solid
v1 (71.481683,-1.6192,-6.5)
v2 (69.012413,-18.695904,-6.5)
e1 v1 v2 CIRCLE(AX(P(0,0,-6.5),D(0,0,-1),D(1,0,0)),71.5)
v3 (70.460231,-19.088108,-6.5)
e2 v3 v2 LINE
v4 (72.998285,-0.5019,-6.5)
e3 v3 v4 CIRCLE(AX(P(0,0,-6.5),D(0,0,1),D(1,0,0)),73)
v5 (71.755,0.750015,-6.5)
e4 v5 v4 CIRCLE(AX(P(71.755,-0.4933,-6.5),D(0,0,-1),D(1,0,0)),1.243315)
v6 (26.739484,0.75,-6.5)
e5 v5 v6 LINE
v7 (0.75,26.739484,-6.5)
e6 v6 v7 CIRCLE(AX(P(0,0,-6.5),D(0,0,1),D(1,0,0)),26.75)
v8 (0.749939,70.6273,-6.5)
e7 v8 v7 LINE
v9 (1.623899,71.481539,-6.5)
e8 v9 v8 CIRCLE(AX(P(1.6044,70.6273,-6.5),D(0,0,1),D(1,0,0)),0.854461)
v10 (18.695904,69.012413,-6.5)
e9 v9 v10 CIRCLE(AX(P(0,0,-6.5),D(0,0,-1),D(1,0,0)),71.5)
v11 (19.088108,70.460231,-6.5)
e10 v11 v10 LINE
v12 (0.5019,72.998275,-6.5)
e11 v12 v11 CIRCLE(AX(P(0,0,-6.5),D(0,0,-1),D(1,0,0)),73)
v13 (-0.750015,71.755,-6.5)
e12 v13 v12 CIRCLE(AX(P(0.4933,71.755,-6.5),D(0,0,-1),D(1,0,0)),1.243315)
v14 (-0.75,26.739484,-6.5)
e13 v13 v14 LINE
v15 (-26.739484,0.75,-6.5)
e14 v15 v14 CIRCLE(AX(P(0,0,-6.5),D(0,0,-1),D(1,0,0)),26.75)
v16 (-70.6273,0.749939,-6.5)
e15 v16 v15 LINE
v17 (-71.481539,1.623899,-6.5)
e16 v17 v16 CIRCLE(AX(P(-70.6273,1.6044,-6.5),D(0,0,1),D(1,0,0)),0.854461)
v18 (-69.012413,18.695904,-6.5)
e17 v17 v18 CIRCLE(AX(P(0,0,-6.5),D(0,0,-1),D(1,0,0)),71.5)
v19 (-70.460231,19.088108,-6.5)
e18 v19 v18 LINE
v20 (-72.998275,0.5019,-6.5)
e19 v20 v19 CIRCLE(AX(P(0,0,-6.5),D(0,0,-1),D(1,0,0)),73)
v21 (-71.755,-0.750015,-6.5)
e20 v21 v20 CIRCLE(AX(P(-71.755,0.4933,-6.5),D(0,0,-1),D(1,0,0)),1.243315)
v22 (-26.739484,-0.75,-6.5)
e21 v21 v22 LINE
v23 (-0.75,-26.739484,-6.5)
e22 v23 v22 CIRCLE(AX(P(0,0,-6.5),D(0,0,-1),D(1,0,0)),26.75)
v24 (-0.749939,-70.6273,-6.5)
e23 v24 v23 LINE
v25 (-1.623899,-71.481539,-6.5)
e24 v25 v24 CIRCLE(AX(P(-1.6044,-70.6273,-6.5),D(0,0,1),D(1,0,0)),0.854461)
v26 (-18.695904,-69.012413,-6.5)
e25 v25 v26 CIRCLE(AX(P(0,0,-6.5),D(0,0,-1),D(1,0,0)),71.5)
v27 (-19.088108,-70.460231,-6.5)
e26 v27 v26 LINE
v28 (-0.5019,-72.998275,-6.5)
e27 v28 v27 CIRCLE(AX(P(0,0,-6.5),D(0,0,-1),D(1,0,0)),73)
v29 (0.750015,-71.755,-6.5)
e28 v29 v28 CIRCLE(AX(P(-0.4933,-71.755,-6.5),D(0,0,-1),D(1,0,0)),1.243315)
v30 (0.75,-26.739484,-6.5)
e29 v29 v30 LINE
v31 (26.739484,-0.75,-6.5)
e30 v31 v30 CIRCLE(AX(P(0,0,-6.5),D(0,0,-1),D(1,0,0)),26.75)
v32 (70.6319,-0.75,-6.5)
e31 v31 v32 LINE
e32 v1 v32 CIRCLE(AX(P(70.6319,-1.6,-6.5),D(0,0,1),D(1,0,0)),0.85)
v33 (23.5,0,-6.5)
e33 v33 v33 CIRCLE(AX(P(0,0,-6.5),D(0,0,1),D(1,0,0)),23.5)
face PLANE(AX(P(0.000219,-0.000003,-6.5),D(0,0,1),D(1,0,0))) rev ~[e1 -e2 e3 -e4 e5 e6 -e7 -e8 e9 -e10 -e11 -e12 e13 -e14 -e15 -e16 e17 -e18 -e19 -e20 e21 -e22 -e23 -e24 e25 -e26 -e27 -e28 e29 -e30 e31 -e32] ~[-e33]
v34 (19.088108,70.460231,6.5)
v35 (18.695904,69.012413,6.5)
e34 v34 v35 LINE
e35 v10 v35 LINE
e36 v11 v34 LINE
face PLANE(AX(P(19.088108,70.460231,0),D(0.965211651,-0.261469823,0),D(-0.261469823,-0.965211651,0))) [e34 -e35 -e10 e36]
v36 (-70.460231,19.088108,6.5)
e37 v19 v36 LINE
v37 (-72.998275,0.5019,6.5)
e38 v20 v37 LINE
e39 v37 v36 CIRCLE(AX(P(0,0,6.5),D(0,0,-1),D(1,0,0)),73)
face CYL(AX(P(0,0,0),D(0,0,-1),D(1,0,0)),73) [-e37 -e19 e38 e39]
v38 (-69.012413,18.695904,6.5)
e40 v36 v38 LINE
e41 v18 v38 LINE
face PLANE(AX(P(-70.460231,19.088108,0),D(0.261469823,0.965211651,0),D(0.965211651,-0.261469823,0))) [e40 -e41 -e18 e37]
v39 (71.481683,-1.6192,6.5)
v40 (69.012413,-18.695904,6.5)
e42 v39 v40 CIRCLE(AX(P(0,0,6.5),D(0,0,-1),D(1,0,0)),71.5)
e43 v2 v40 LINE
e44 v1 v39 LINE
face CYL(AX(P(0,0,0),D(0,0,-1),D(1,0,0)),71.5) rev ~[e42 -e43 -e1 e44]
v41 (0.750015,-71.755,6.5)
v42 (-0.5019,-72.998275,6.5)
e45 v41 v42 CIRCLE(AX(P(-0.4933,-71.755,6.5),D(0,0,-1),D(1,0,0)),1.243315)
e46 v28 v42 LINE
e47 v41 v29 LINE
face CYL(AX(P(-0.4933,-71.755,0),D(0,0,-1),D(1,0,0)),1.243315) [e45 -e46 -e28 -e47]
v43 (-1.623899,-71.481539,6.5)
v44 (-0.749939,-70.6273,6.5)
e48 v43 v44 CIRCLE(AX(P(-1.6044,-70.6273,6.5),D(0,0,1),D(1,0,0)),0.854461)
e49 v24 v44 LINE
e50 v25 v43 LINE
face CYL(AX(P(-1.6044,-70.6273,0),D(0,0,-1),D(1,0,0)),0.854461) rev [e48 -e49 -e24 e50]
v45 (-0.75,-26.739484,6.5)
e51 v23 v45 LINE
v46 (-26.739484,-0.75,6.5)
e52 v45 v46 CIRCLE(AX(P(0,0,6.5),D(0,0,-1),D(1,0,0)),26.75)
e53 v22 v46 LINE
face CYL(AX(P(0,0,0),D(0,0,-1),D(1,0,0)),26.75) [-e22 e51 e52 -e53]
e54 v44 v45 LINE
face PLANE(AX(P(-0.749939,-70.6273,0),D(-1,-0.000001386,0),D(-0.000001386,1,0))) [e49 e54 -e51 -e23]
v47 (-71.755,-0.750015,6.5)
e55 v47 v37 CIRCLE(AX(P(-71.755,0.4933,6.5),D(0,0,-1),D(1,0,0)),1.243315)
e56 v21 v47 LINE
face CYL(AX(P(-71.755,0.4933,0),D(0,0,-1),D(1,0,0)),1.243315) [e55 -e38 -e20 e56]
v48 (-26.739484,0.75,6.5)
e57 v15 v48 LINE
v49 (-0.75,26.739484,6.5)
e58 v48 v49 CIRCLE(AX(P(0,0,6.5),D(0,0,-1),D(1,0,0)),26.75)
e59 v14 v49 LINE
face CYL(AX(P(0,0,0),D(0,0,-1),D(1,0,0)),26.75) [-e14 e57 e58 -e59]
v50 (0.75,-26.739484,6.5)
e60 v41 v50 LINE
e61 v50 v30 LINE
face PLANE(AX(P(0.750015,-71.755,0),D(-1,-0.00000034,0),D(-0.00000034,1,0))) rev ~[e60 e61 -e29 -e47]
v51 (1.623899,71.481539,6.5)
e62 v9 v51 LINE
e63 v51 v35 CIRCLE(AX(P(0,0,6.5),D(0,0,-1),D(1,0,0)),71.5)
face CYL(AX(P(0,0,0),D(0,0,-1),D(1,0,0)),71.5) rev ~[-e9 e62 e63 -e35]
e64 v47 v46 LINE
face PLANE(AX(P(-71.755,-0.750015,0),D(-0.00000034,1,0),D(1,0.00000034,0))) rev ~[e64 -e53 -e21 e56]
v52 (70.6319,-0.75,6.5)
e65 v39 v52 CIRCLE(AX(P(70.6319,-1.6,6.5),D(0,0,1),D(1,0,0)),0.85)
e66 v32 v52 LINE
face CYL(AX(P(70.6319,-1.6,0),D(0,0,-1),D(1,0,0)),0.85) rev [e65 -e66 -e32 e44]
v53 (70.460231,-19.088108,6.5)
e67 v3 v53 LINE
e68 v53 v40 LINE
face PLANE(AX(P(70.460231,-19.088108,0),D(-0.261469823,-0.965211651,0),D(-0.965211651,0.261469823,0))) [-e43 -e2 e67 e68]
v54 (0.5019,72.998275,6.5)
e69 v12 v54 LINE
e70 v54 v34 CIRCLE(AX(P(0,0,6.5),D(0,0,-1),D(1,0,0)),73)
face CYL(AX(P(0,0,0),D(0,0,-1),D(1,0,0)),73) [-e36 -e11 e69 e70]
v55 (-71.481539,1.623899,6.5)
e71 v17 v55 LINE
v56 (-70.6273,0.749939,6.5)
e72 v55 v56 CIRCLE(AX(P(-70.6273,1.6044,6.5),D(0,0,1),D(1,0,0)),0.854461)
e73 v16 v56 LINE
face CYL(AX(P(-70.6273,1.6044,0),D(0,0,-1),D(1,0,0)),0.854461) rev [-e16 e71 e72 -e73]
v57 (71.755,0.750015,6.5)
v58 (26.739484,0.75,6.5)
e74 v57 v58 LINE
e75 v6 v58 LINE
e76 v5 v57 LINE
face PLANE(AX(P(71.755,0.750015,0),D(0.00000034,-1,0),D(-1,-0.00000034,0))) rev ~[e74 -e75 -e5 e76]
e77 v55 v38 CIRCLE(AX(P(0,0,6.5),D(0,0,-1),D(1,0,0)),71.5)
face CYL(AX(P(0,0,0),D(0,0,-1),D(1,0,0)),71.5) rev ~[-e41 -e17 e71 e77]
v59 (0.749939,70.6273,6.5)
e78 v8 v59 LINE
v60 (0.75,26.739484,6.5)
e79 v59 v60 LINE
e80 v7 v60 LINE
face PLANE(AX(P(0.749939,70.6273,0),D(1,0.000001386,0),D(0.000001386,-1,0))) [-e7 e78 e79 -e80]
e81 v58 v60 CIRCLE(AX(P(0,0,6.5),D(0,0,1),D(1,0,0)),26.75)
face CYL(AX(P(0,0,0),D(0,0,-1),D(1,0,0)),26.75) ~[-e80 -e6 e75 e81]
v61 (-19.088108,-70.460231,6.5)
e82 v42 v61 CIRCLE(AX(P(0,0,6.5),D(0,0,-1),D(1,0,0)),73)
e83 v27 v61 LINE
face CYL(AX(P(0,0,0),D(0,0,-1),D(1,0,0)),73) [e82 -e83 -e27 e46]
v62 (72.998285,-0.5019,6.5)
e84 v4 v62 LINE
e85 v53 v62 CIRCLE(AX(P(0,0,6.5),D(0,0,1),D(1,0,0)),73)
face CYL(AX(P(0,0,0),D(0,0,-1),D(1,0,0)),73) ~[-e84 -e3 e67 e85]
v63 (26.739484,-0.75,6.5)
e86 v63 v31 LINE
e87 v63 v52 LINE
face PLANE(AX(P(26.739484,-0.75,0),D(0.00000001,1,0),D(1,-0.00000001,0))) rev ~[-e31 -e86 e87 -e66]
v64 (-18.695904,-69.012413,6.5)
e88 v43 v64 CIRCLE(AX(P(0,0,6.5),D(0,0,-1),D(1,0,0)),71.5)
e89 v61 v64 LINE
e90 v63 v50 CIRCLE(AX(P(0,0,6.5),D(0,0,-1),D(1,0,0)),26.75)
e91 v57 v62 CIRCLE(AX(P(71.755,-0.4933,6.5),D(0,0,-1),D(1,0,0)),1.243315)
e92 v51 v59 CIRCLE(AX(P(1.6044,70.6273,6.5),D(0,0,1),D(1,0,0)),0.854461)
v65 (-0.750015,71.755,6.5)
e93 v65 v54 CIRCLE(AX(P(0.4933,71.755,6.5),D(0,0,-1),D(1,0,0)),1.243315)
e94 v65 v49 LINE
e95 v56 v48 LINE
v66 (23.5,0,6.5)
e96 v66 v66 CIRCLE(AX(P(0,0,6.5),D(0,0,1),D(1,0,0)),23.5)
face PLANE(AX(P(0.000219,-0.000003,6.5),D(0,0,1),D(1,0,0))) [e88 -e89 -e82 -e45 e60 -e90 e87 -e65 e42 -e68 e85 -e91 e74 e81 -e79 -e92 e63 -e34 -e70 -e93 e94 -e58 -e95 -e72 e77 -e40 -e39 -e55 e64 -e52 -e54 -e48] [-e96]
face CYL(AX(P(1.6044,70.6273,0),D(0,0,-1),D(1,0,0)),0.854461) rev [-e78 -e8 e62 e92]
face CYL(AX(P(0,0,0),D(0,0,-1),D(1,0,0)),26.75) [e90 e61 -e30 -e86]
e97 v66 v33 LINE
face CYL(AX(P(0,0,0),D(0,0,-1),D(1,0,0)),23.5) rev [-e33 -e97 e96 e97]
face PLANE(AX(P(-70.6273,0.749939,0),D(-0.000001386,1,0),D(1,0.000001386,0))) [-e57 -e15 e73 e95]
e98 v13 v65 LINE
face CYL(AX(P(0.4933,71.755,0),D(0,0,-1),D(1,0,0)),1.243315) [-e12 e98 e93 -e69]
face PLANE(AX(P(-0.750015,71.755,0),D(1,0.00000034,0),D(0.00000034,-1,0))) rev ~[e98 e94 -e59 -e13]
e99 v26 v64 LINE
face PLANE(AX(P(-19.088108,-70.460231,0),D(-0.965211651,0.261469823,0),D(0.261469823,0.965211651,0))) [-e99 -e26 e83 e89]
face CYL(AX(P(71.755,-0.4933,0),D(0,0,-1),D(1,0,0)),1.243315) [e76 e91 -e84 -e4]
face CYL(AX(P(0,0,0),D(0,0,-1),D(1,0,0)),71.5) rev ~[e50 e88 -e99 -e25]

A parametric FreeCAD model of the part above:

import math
import FreeCAD as App
import Part
import Sketcher
Q = App.Units.Quantity

doc = App.newDocument("Part")
params = doc.addObject("Spreadsheet::Sheet", "Params")
for row, (alias, value) in enumerate([
    ("sketch1_diameter", "47 mm"),
    ("sketch1_radius", "26.75 mm"),
    ("sketch1_radius2", "0.85 mm"),
    ("sketch1_length", "1.5 mm"),
    ("pad1_length", "13 mm"),
], start=1):
    params.set(f"A{row}", alias)
    params.set(f"B{row}", "=" + value)
    params.setAlias(f"B{row}", alias)

body = doc.addObject("PartDesign::Body", "Body")

sketch1 = doc.addObject("Sketcher::SketchObject", "Sketch")
body.addObject(sketch1)
sketch1.AttachmentSupport = (doc.XY_Plane, [""])
sketch1.MapMode = "FlatFace"
sketch1.addGeometry([
    Part.ArcOfCircle(Part.Circle(App.Vector(0, 0, 0), App.Vector(0, 0, 1), 26.750016), math.radians(-88.393367), math.radians(-1.606633)),
    Part.LineSegment(App.Vector(26.7395, -0.75, 0), App.Vector(70.6319, -0.75, 0)),
    Part.ArcOfCircle(Part.Circle(App.Vector(70.6319, -1.6, 0), App.Vector(0, 0, 1), 0.850017), math.radians(-1.294295), math.radians(90)),
    Part.ArcOfCircle(Part.Circle(App.Vector(0.003446, -0.000287, 0), App.Vector(0, 0, 1), 71.496585), math.radians(-15.158468), math.radians(-1.297472)),
    Part.LineSegment(App.Vector(69.0124, -18.6959, 0), App.Vector(70.4602, -19.0881, 0)),
    Part.ArcOfCircle(Part.Circle(App.Vector(-0.003393, 0.000688, 0), App.Vector(0, 0, 1), 73.003423), math.radians(-15.157779), math.radians(-0.394453)),
    Part.ArcOfCircle(Part.Circle(App.Vector(71.755, -0.4933, 0), App.Vector(0, 0, 1), 1.2433), math.radians(-0.396313), math.radians(90)),
    Part.LineSegment(App.Vector(71.755, 0.75, 0), App.Vector(26.7395, 0.75, 0)),
    Part.ArcOfCircle(Part.Circle(App.Vector(0, 0, 0), App.Vector(0, 0, 1), 26.750016), math.radians(1.606633), math.radians(88.393367)),
    Part.LineSegment(App.Vector(0.75, 26.7395, 0), App.Vector(0.75, 70.6273, 0)),
    Part.ArcOfCircle(Part.Circle(App.Vector(1.6044, 70.6273, 0), App.Vector(0, 0, 1), 0.854523), math.radians(88.69241), math.radians(180)),
    Part.ArcOfCircle(Part.Circle(App.Vector(0.000325, 0.0039, 0), App.Vector(0, 0, 1), 71.496137), math.radians(74.841467), math.radians(88.698783)),
    Part.LineSegment(App.Vector(18.6959, 69.0124, 0), App.Vector(19.0881, 70.4602, 0)),
    Part.ArcOfCircle(Part.Circle(App.Vector(0.000247, 0.003453, 0), App.Vector(0, 0, 1), 72.996571), math.radians(74.841524), math.radians(89.606244)),
    Part.ArcOfCircle(Part.Circle(App.Vector(0.4933, 71.755, 0), App.Vector(0, 0, 1), 1.2433), math.radians(89.603687), math.radians(180)),
    Part.LineSegment(App.Vector(-0.75, 71.755, 0), App.Vector(-0.75, 26.7395, 0)),
    Part.ArcOfCircle(Part.Circle(App.Vector(0, 0, 0), App.Vector(0, 0, 1), 26.750016), math.radians(91.606633), math.radians(178.393367)),
    Part.LineSegment(App.Vector(-26.7395, 0.75, 0), App.Vector(-70.6273, 0.75, 0)),
    Part.ArcOfCircle(Part.Circle(App.Vector(-70.6273, 1.6044, 0), App.Vector(0, 0, 1), 0.854523), math.radians(178.69241), math.radians(270)),
    Part.ArcOfCircle(Part.Circle(App.Vector(-0.0039, 0.000325, 0), App.Vector(0, 0, 1), 71.496137), math.radians(164.841467), math.radians(178.698783)),
    Part.LineSegment(App.Vector(-69.0124, 18.6959, 0), App.Vector(-70.4602, 19.0881, 0)),
    Part.ArcOfCircle(Part.Circle(App.Vector(-0.003453, 0.000247, 0), App.Vector(0, 0, 1), 72.996571), math.radians(164.841524), math.radians(179.606244)),
    Part.ArcOfCircle(Part.Circle(App.Vector(-71.755, 0.4933, 0), App.Vector(0, 0, 1), 1.2433), math.radians(179.603687), math.radians(270)),
    Part.LineSegment(App.Vector(-71.755, -0.75, 0), App.Vector(-26.7395, -0.75, 0)),
    Part.ArcOfCircle(Part.Circle(App.Vector(0, 0, 0), App.Vector(0, 0, 1), 26.750016), math.radians(-178.393367), math.radians(-91.606633)),
    Part.LineSegment(App.Vector(-0.75, -26.7395, 0), App.Vector(-0.75, -70.6273, 0)),
    Part.ArcOfCircle(Part.Circle(App.Vector(-1.6044, -70.6273, 0), App.Vector(0, 0, 1), 0.854523), math.radians(-91.30759), math.radians(0)),
    Part.ArcOfCircle(Part.Circle(App.Vector(-0.000325, -0.0039, 0), App.Vector(0, 0, 1), 71.496137), math.radians(-105.158533), math.radians(-91.301217)),
    Part.LineSegment(App.Vector(-18.6959, -69.0124, 0), App.Vector(-19.0881, -70.4602, 0)),
    Part.ArcOfCircle(Part.Circle(App.Vector(-0.000247, -0.003453, 0), App.Vector(0, 0, 1), 72.996571), math.radians(-105.158476), math.radians(-90.393756)),
    Part.ArcOfCircle(Part.Circle(App.Vector(-0.4933, -71.755, 0), App.Vector(0, 0, 1), 1.2433), math.radians(-90.396313), math.radians(0)),
    Part.LineSegment(App.Vector(0.75, -71.755, 0), App.Vector(0.75, -26.7395, 0)),
    Part.Circle(App.Vector(0, 0, 0), App.Vector(0, 0, 1), 23.5),
], False)
sketch1.addConstraint([
    Sketcher.Constraint("Coincident", 0, 2, 1, 1),
    Sketcher.Constraint("Tangent", 1, 2, 2, 2),
    Sketcher.Constraint("Tangent", 2, 1, 3, 2),
    Sketcher.Constraint("Coincident", 3, 1, 4, 1),
    Sketcher.Constraint("Coincident", 4, 2, 5, 1),
    Sketcher.Constraint("Tangent", 5, 2, 6, 1),
    Sketcher.Constraint("Tangent", 6, 2, 7, 1),
    Sketcher.Constraint("Coincident", 7, 2, 8, 1),
    Sketcher.Constraint("Coincident", 8, 2, 9, 1),
    Sketcher.Constraint("Tangent", 9, 2, 10, 2),
    Sketcher.Constraint("Tangent", 10, 1, 11, 2),
    Sketcher.Constraint("Coincident", 11, 1, 12, 1),
    Sketcher.Constraint("Coincident", 12, 2, 13, 1),
    Sketcher.Constraint("Tangent", 13, 2, 14, 1),
    Sketcher.Constraint("Tangent", 14, 2, 15, 1),
    Sketcher.Constraint("Coincident", 15, 2, 16, 1),
    Sketcher.Constraint("Coincident", 16, 2, 17, 1),
    Sketcher.Constraint("Tangent", 17, 2, 18, 2),
    Sketcher.Constraint("Tangent", 18, 1, 19, 2),
    Sketcher.Constraint("Coincident", 19, 1, 20, 1),
    Sketcher.Constraint("Coincident", 20, 2, 21, 1),
    Sketcher.Constraint("Tangent", 21, 2, 22, 1),
    Sketcher.Constraint("Tangent", 22, 2, 23, 1),
    Sketcher.Constraint("Coincident", 23, 2, 24, 1),
    Sketcher.Constraint("Coincident", 24, 2, 25, 1),
    Sketcher.Constraint("Tangent", 25, 2, 26, 2),
    Sketcher.Constraint("Tangent", 26, 1, 27, 2),
    Sketcher.Constraint("Coincident", 27, 1, 28, 1),
    Sketcher.Constraint("Coincident", 28, 2, 29, 1),
    Sketcher.Constraint("Tangent", 29, 2, 30, 1),
    Sketcher.Constraint("Tangent", 30, 2, 31, 1),
    Sketcher.Constraint("Coincident", 31, 2, 0, 1),
    Sketcher.Constraint("Horizontal", 1),
    Sketcher.Constraint("Horizontal", 7),
    Sketcher.Constraint("Vertical", 9),
    Sketcher.Constraint("Vertical", 15),
    Sketcher.Constraint("Horizontal", 17),
    Sketcher.Constraint("Horizontal", 23),
    Sketcher.Constraint("Vertical", 25),
    Sketcher.Constraint("Vertical", 31),
    Sketcher.Constraint("Coincident", 0, 3, -1, 1),
    Sketcher.Constraint("Coincident", 8, 3, -1, 1),
    Sketcher.Constraint("Coincident", 16, 3, -1, 1),
    Sketcher.Constraint("Coincident", 24, 3, -1, 1),
    Sketcher.Constraint("Coincident", 32, 3, -1, 1),
    Sketcher.Constraint("Equal", 0, 8),
    Sketcher.Constraint("Equal", 6, 14),
    Sketcher.Constraint("Equal", 8, 16),
    Sketcher.Constraint("Equal", 10, 18),
    Sketcher.Constraint("Equal", 11, 19),
    Sketcher.Constraint("Equal", 13, 21),
    Sketcher.Constraint("Equal", 14, 22),
    Sketcher.Constraint("Equal", 16, 24),
    Sketcher.Constraint("Equal", 18, 26),
    Sketcher.Constraint("Equal", 19, 27),
    Sketcher.Constraint("Equal", 21, 29),
    Sketcher.Constraint("Equal", 22, 30),
    Sketcher.Constraint("Symmetric", 3, 3, 21, 3, -1, 1),
    Sketcher.Constraint("Symmetric", 6, 3, 22, 3, -1, 1),
    Sketcher.Constraint("Symmetric", 10, 3, 26, 3, -1, 1),
    Sketcher.Constraint("Symmetric", 13, 3, 29, 3, -1, 1),
    Sketcher.Constraint("Symmetric", 3, 1, 19, 1, -1, 1),
    Sketcher.Constraint("Symmetric", 4, 2, 20, 2, -1, 1),
    Sketcher.Constraint("Symmetric", 11, 1, 27, 1, -1, 1),
    Sketcher.Constraint("Perpendicular", 4, 12),
    Sketcher.Constraint("Perpendicular", 20, 28),
    Sketcher.Constraint("Horizontal", 19, 3, 21, 3),
    Sketcher.Constraint("Horizontal", 8, 2, 15, 2),
    Sketcher.Constraint("Horizontal", 7, 2, 16, 2),
    Sketcher.Constraint("Horizontal", 1, 2, 22, 2),
    Sketcher.Constraint("Horizontal", 24, 2, 31, 2),
    Sketcher.Constraint("Vertical", 11, 3, 13, 3),
    Sketcher.Constraint("Vertical", 5, 3, 21, 3),
    Sketcher.Constraint("Equal", 17, 9),
    Sketcher.Constraint("Equal", 23, 15),
    Sketcher.Constraint("Equal", 4, 12),
    Sketcher.Constraint("Diameter", 32, Q("47 mm")),
    Sketcher.Constraint("Radius", 0, Q("26.75 mm")),
    Sketcher.Constraint("Radius", 2, Q("0.85 mm")),
    Sketcher.Constraint("Distance", 4, Q("1.5 mm")),
    Sketcher.Constraint("DistanceY", 2, 3, -1, 1, Q("1.6 mm")),
    Sketcher.Constraint("Radius", 3, Q("71.4966 mm")),
    Sketcher.Constraint("Radius", 5, Q("73.0034 mm")),
    Sketcher.Constraint("Radius", 6, Q("1.2433 mm")),
    Sketcher.Constraint("Radius", 10, Q("0.8545 mm")),
    Sketcher.Constraint("Radius", 11, Q("71.4961 mm")),
    Sketcher.Constraint("DistanceX", 14, 2, 9, 2, Q("1.5 mm")),
    Sketcher.Constraint("DistanceX", 1, 1, 1, 2, Q("43.8924 mm")),
    Sketcher.Constraint("DistanceY", 3, 1, -1, 1, Q("18.696 mm")),
    Sketcher.Constraint("DistanceY", 4, 2, -1, 1, Q("19.088 mm")),
    Sketcher.Constraint("DistanceX", -1, 1, 11, 1, Q("18.696 mm")),
])
sketch1.setExpression("Constraints[76]", "Params.sketch1_diameter")
sketch1.setExpression("Constraints[77]", "Params.sketch1_radius")
sketch1.setExpression("Constraints[78]", "Params.sketch1_radius2")
sketch1.setExpression("Constraints[79]", "Params.sketch1_length")
pad1 = doc.addObject("PartDesign::Pad", "Pad")
body.addObject(pad1)
pad1.Profile = sketch1
pad1.setExpression("Length", "Params.pad1_length")
pad1.Midplane = True

doc.recompute()
